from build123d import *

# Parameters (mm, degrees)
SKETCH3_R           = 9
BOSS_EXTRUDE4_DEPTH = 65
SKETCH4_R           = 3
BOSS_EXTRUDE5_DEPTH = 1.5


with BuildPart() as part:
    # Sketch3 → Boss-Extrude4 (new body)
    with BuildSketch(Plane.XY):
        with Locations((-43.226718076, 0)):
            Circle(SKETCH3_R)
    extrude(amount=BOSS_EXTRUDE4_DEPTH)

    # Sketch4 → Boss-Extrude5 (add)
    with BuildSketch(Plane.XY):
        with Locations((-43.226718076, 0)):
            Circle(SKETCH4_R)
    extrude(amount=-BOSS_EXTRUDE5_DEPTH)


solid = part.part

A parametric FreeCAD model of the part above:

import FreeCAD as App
import Part
import Sketcher
from FreeCAD import Vector

doc = App.newDocument("Part")
body = doc.addObject("PartDesign::Body", "Body")

# Sketch on XY plane
sketch1 = body.newObject("Sketcher::SketchObject", "Sketch")
sketch1.AttachmentSupport = (doc.getObject("XY_Plane"), [""])
sketch1.MapMode = "FlatFace"
sketch1.addGeometry(Part.Circle(Vector(-43, 0, 0), Vector(0, 0, 1), 9), False)
sketch1.addConstraint(Sketcher.Constraint("PointOnObject", 0, 3, -1))
sketch1.addConstraint(Sketcher.Constraint("Diameter", 0, 18.0))
sketch1.addConstraint(Sketcher.Constraint("DistanceX", 0, 3, -1, 1, 43.226718))
pad1 = body.newObject("PartDesign::Pad", "Pad")
pad1.Profile = sketch1
pad1.Length = 65

# Sketch on XY plane
sketch2 = body.newObject("Sketcher::SketchObject", "Sketch001")
sketch2.AttachmentSupport = (doc.getObject("XY_Plane"), [""])
sketch2.MapMode = "FlatFace"
sketch2.addGeometry(Part.Circle(Vector(-43.2, 0, 0), Vector(0, 0, 1), 3), False)
sketch2.addConstraint(Sketcher.Constraint("PointOnObject", 0, 3, -1))
sketch2.addConstraint(Sketcher.Constraint("Diameter", 0, 6.0))
sketch2.addConstraint(Sketcher.Constraint("DistanceX", 0, 3, -1, 1, 43.226718))
pad2 = body.newObject("PartDesign::Pad", "Pad001")
pad2.Profile = sketch2
pad2.Length = 1.5
pad2.Reversed = True

doc.recompute()
